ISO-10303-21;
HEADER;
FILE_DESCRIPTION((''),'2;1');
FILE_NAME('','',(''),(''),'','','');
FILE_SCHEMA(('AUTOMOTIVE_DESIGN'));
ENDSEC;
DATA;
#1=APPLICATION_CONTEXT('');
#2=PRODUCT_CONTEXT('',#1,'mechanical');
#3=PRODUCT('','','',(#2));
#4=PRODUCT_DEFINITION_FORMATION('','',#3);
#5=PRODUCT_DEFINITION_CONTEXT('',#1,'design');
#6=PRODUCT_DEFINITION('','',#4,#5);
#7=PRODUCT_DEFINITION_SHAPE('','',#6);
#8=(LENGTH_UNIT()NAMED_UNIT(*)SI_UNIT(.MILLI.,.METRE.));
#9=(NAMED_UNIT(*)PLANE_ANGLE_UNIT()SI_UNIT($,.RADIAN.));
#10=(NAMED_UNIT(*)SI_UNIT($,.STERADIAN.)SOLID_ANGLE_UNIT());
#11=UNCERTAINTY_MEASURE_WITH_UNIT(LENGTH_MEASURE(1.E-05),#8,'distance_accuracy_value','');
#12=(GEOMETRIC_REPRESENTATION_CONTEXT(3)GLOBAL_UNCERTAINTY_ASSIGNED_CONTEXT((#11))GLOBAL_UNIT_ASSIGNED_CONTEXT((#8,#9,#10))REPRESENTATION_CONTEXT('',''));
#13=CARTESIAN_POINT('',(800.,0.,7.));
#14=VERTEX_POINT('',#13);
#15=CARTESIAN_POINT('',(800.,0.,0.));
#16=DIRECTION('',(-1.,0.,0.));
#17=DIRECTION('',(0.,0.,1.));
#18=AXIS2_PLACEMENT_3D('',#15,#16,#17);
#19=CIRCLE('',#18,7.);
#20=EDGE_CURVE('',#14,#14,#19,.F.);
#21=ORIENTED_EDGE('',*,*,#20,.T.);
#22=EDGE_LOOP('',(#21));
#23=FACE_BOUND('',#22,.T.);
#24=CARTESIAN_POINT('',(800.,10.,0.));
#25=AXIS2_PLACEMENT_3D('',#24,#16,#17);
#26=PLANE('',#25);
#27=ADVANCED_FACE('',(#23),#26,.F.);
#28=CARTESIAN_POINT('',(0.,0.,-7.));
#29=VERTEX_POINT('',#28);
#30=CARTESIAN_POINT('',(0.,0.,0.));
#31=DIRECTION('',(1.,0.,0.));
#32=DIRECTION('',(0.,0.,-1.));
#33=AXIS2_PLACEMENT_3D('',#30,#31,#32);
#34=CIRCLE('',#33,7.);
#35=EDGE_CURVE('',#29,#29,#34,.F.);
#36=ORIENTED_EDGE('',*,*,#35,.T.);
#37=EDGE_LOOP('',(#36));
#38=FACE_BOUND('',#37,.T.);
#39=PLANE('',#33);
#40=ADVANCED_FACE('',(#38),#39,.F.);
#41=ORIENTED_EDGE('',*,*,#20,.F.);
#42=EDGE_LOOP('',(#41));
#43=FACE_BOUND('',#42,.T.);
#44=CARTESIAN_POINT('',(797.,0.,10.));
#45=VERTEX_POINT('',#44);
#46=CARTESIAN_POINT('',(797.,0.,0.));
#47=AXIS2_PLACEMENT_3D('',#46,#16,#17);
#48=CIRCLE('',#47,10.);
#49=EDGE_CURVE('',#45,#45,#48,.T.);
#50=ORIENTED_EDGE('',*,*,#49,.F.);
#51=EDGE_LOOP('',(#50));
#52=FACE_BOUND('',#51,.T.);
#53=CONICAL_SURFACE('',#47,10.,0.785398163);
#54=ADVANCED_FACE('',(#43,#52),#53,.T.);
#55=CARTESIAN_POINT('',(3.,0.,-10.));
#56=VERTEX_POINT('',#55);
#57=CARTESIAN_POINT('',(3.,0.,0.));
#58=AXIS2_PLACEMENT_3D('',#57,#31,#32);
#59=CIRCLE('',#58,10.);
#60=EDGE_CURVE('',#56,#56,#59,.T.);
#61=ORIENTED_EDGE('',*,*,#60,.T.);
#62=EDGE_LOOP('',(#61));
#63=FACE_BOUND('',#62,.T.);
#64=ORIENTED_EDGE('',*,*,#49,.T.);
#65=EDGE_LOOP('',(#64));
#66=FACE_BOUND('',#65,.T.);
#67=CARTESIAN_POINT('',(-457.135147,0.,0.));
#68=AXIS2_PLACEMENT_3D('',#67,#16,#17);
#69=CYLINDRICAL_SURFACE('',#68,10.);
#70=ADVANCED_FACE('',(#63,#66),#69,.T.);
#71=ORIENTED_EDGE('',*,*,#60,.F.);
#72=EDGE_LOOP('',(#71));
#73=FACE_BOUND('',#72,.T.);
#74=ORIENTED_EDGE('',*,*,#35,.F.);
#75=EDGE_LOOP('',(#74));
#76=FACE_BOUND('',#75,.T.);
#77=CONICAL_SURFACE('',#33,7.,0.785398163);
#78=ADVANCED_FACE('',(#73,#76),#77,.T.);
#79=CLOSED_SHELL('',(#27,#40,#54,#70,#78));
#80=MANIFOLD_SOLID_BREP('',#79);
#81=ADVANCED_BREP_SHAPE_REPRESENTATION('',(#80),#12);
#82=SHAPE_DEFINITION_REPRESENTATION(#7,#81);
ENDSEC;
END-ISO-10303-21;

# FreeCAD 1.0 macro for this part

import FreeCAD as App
import Part
import Sketcher
Q = App.Units.Quantity


def edges_at(feature, points):
    """Names of the edges that pass closest to the given points."""
    edges = feature.Shape.Edges
    near = lambda p: min(range(len(edges)), key=lambda i: edges[i].distToShape(Part.Vertex(*p))[0])
    return sorted({f"Edge{near(p) + 1}" for p in points})


def add_polygon(sketch, points):
    """Adds a closed chain of lines whose ends are joined by coincident constraints."""
    first, n = sketch.GeometryCount, len(points)
    for a, b in zip(points, points[1:] + points[:1]):
        sketch.addGeometry(Part.LineSegment(App.Vector(*a, 0), App.Vector(*b, 0)), False)
    for i in range(n):
        sketch.addConstraint(Sketcher.Constraint("Coincident", first + i, 2, first + (i + 1) % n, 1))

doc = App.newDocument("Part")
body = doc.addObject("PartDesign::Body", "Body")

# Sketch on XY plane
sketch1 = doc.addObject("Sketcher::SketchObject", "Sketch")
body.addObject(sketch1)
sketch1.AttachmentSupport = (doc.XY_Plane, [""])
sketch1.MapMode = "FlatFace"
add_polygon(sketch1, [(0, 10), (0, 0), (800, 0), (800, 10)])  # lines 0-3
sketch1.addConstraint([
    Sketcher.Constraint("Vertical", 0),
    Sketcher.Constraint("Horizontal", 1),
    Sketcher.Constraint("Vertical", 2),
    Sketcher.Constraint("Horizontal", 3),
    Sketcher.Constraint("Coincident", 0, 2, -1, 1),
    Sketcher.Constraint("DistanceX", 1, 1, 1, 2, Q("800 mm")),
    Sketcher.Constraint("DistanceY", 0, 2, 0, 1, Q("10 mm")),
])
revolution = doc.addObject("PartDesign::Revolution", "Revolution")
body.addObject(revolution)
revolution.Profile = sketch1
revolution.ReferenceAxis = (sketch1, ["H_Axis"])
revolution.Angle = 360
doc.recompute()

chamfer = doc.addObject("PartDesign::Chamfer", "Chamfer")
body.addObject(chamfer)
chamfer.Base = (revolution, edges_at(revolution, [(800, -10, 0), (0, -10, 0)]))
chamfer.Size = 3

doc.recompute()
